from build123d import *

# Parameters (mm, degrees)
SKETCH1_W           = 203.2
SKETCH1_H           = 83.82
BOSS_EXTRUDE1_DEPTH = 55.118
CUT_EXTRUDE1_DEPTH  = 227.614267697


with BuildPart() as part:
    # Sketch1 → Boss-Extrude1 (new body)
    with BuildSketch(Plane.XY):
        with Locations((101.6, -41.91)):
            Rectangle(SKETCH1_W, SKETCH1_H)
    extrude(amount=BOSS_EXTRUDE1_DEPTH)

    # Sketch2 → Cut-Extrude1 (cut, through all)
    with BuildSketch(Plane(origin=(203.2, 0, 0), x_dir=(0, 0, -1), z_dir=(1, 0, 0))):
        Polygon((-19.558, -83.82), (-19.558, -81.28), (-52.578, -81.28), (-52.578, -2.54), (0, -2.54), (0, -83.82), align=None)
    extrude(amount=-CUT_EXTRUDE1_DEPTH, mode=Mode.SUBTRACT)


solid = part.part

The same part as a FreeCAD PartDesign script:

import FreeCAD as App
import Part
import Sketcher

V = App.Vector
Q = App.Units.Quantity


def add_polygon(sketch, points):
    """Adds a closed chain of lines whose ends are joined by coincident constraints."""
    first, n = sketch.GeometryCount, len(points)
    for a, b in zip(points, points[1:] + points[:1]):
        sketch.addGeometry(Part.LineSegment(App.Vector(*a, 0), App.Vector(*b, 0)), False)
    for i in range(n):
        sketch.addConstraint(Sketcher.Constraint("Coincident", first + i, 2, first + (i + 1) % n, 1))

doc = App.newDocument("Part")
params = doc.addObject("Spreadsheet::Sheet", "Params")
for row, (alias, value) in enumerate([
    ("sketch1_width", "8 in"),
    ("sketch1_height", "3.3 in"),
    ("pad1_length", "2.17 in"),
    ("sketch2_width", "0.1 in"),
    ("sketch2_width2", "3.2 in"),
    ("sketch2_height", "1.3 in"),
    ("sketch2_height2", "0.77 in"),
], start=1):
    params.set(f"A{row}", alias)
    params.set(f"B{row}", "=" + value)
    params.setAlias(f"B{row}", alias)

body = doc.addObject("PartDesign::Body", "Body")

# Sketch on XY plane
sketch1 = body.newObject("Sketcher::SketchObject", "Sketch")
sketch1.AttachmentSupport = (doc.getObject("XY_Plane"), [""])
sketch1.MapMode = "FlatFace"
add_polygon(sketch1, [(0, 0), (0, -84), (203, -84), (203, 0)])  # lines 0-3
sketch1.addConstraint(Sketcher.Constraint("Vertical", 0))
sketch1.addConstraint(Sketcher.Constraint("Horizontal", 1))
sketch1.addConstraint(Sketcher.Constraint("Vertical", 2))
sketch1.addConstraint(Sketcher.Constraint("Horizontal", 3))
sketch1.addConstraint(Sketcher.Constraint("Coincident", 3, 2, -1, 1))
sketch1.addConstraint(Sketcher.Constraint("DistanceX", 1, 1, 1, 2, Q("8 in")))
sketch1.addConstraint(Sketcher.Constraint("DistanceY", 0, 2, 0, 1, Q("3.3 in")))
sketch1.setExpression("Constraints[9]", "Params.sketch1_width")
sketch1.setExpression("Constraints[10]", "Params.sketch1_height")
pad1 = body.newObject("PartDesign::Pad", "Pad")
pad1.Profile = sketch1
pad1.setExpression("Length", "Params.pad1_length")

# Sketch on YZ plane
sketch2 = body.newObject("Sketcher::SketchObject", "Sketch001")
sketch2.AttachmentSupport = (doc.getObject("YZ_Plane"), [""])
sketch2.MapMode = "FlatFace"
sketch2.AttachmentOffset = App.Placement(V(0, 0, 8 * 25.4), App.Rotation())
add_polygon(sketch2, [(-81.3, 19.6), (-83.8, 19.6), (-83.8, 0), (-2.5, 0), (-2.5, 52.6), (-81.3, 52.6)])  # lines 0-5
sketch2.addConstraint(Sketcher.Constraint("Horizontal", 0))
sketch2.addConstraint(Sketcher.Constraint("Vertical", 1))
sketch2.addConstraint(Sketcher.Constraint("Horizontal", 2))
sketch2.addConstraint(Sketcher.Constraint("Vertical", 3))
sketch2.addConstraint(Sketcher.Constraint("Horizontal", 4))
sketch2.addConstraint(Sketcher.Constraint("Vertical", 5))
sketch2.addConstraint(Sketcher.Constraint("PointOnObject", 1, 2, -1))
sketch2.addConstraint(Sketcher.Constraint("DistanceX", 0, 2, 0, 1, Q("0.1 in")))
sketch2.addConstraint(Sketcher.Constraint("DistanceX", 2, 1, 2, 2, Q("3.2 in")))
sketch2.addConstraint(Sketcher.Constraint("DistanceY", 5, 2, 5, 1, Q("1.3 in")))
sketch2.addConstraint(Sketcher.Constraint("DistanceY", 1, 2, 1, 1, Q("0.77 in")))
sketch2.addConstraint(Sketcher.Constraint("DistanceX", 0, 2, -1, 1, Q("3.3 in")))
sketch2.setExpression("Constraints[13]", "Params.sketch2_width")
sketch2.setExpression("Constraints[14]", "Params.sketch2_width2")
sketch2.setExpression("Constraints[15]", "Params.sketch2_height")
sketch2.setExpression("Constraints[16]", "Params.sketch2_height2")
pocket1 = body.newObject("PartDesign::Pocket", "Pocket")
pocket1.Profile = sketch2
pocket1.Type = "ThroughAll"

doc.recompute()
